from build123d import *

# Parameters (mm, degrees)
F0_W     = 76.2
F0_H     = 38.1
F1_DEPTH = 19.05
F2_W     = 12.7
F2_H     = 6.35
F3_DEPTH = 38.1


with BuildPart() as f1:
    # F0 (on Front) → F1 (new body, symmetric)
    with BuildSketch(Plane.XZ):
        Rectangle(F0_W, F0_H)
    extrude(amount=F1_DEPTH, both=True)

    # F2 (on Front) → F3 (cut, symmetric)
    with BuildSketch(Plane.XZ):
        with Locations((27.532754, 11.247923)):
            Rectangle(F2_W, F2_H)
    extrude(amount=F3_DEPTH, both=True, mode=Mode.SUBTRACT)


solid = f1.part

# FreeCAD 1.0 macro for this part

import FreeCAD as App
import Part
import Sketcher
Q = App.Units.Quantity


def add_polygon(sketch, points):
    """Adds a closed chain of lines whose ends are joined by coincident constraints."""
    first, n = sketch.GeometryCount, len(points)
    for a, b in zip(points, points[1:] + points[:1]):
        sketch.addGeometry(Part.LineSegment(App.Vector(*a, 0), App.Vector(*b, 0)), False)
    for i in range(n):
        sketch.addConstraint(Sketcher.Constraint("Coincident", first + i, 2, first + (i + 1) % n, 1))

doc = App.newDocument("Part")
body = doc.addObject("PartDesign::Body", "Body")

# Sketch on XZ plane
sketch1 = doc.addObject("Sketcher::SketchObject", "Sketch")
body.addObject(sketch1)
sketch1.AttachmentSupport = (doc.XZ_Plane, [""])
sketch1.MapMode = "FlatFace"
add_polygon(sketch1, [(-38, 19), (-38, -19), (38, -19), (38, 19)])  # lines 0-3
sketch1.addConstraint([
    Sketcher.Constraint("Vertical", 0),
    Sketcher.Constraint("Horizontal", 1),
    Sketcher.Constraint("Vertical", 2),
    Sketcher.Constraint("Horizontal", 3),
    Sketcher.Constraint("Symmetric", 0, 2, 2, 2, -1, 1),
    Sketcher.Constraint("DistanceX", 1, 1, 1, 2, Q("3 in")),
    Sketcher.Constraint("DistanceY", 0, 2, 0, 1, Q("1.5 in")),
])
pad1 = doc.addObject("PartDesign::Pad", "Pad")
body.addObject(pad1)
pad1.Profile = sketch1
pad1.Length = Q("1.5 in")
pad1.Midplane = True

# Sketch on XZ plane
sketch2 = doc.addObject("Sketcher::SketchObject", "Sketch001")
body.addObject(sketch2)
sketch2.AttachmentSupport = (doc.XZ_Plane, [""])
sketch2.MapMode = "FlatFace"
add_polygon(sketch2, [(21, 14), (21, 8), (34, 8), (34, 14)])  # lines 0-3
sketch2.addConstraint([
    Sketcher.Constraint("Vertical", 0),
    Sketcher.Constraint("Horizontal", 1),
    Sketcher.Constraint("Vertical", 2),
    Sketcher.Constraint("Horizontal", 3),
    Sketcher.Constraint("DistanceX", 1, 1, 1, 2, Q("0.5 in")),
    Sketcher.Constraint("DistanceY", 0, 2, 0, 1, Q("0.25 in")),
    Sketcher.Constraint("DistanceX", -1, 1, 0, 2, 21.182754),
    Sketcher.Constraint("DistanceY", -1, 1, 0, 2, 8.072923),
])
pocket1 = doc.addObject("PartDesign::Pocket", "Pocket")
body.addObject(pocket1)
pocket1.Profile = sketch2
pocket1.Length = Q("3 in")
pocket1.Midplane = True

doc.recompute()
